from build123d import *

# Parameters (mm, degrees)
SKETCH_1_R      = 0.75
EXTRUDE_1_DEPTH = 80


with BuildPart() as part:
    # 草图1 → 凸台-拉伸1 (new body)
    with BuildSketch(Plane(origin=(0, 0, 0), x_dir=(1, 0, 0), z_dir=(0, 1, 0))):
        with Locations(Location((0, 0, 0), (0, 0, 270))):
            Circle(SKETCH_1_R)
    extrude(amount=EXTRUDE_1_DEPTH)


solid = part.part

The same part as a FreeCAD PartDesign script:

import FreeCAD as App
import Part
import Sketcher
from FreeCAD import Vector

doc = App.newDocument("Part")
body = doc.addObject("PartDesign::Body", "Body")

sketch1 = body.newObject("Sketcher::SketchObject", "Sketch")
sketch1.AttachmentSupport = (doc.getObject("XZ_Plane"), [""])
sketch1.MapMode = "FlatFace"
sketch1.addGeometry(Part.Circle(Vector(0, 0, 0), Vector(0, 0, 1), 0.8), False)
sketch1.addConstraint(Sketcher.Constraint("Coincident", 0, 3, -1, 1))
sketch1.addConstraint(Sketcher.Constraint("Diameter", 0, 1.5))
pad1 = body.newObject("PartDesign::Pad", "Pad")
pad1.Profile = sketch1
pad1.Length = 80
pad1.Reversed = True

doc.recompute()
